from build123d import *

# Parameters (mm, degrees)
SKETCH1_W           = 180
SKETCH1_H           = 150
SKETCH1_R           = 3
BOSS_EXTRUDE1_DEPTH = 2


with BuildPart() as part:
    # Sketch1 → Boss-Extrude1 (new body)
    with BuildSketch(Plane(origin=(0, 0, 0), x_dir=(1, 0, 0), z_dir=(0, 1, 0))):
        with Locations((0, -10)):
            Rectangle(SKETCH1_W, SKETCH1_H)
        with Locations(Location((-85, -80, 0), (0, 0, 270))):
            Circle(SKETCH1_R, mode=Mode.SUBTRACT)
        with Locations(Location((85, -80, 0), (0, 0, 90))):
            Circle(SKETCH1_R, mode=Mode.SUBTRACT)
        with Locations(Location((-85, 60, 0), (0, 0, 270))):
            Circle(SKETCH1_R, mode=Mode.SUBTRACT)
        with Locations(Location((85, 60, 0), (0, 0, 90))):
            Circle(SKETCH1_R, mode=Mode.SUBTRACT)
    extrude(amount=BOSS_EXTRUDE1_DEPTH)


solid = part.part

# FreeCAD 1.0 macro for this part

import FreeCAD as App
import Part
import Sketcher

V = App.Vector
Q = App.Units.Quantity

doc = App.newDocument("Part")
body = doc.addObject("PartDesign::Body", "Body")

# Sketch on XZ plane
sketch1 = body.newObject("Sketcher::SketchObject", "Sketch")
sketch1.AttachmentSupport = (doc.getObject("XZ_Plane"), [""])
sketch1.MapMode = "FlatFace"
sketch1.addGeometry(Part.LineSegment(V(-90, -65, 0), V(-90, 85, 0)), False)
sketch1.addGeometry(Part.LineSegment(V(-90, 85, 0), V(90, 85, 0)), False)
sketch1.addGeometry(Part.LineSegment(V(90, 85, 0), V(90, -65, 0)), False)
sketch1.addGeometry(Part.LineSegment(V(90, -65, 0), V(-90, -65, 0)), False)
sketch1.addGeometry(Part.Circle(V(-85, 80, 0), V(0, 0, 1), 3), False)
sketch1.addGeometry(Part.Circle(V(85, 80, 0), V(0, 0, 1), 3), False)
sketch1.addGeometry(Part.Circle(V(-85, -60, 0), V(0, 0, 1), 3), False)
sketch1.addGeometry(Part.Circle(V(85, -60, 0), V(0, 0, 1), 3), False)
sketch1.addConstraint(Sketcher.Constraint("Coincident", 0, 2, 1, 1))
sketch1.addConstraint(Sketcher.Constraint("Coincident", 1, 2, 2, 1))
sketch1.addConstraint(Sketcher.Constraint("Coincident", 2, 2, 3, 1))
sketch1.addConstraint(Sketcher.Constraint("Coincident", 3, 2, 0, 1))
sketch1.addConstraint(Sketcher.Constraint("Vertical", 0))
sketch1.addConstraint(Sketcher.Constraint("Horizontal", 1))
sketch1.addConstraint(Sketcher.Constraint("Vertical", 2))
sketch1.addConstraint(Sketcher.Constraint("Horizontal", 3))
sketch1.addConstraint(Sketcher.Constraint("Equal", 4, 5))
sketch1.addConstraint(Sketcher.Constraint("Equal", 5, 6))
sketch1.addConstraint(Sketcher.Constraint("Equal", 6, 7))
sketch1.addConstraint(Sketcher.Constraint("Symmetric", 4, 3, 5, 3, -2))
sketch1.addConstraint(Sketcher.Constraint("Symmetric", 6, 3, 7, 3, -2))
sketch1.addConstraint(Sketcher.Constraint("Vertical", 4, 3, 6, 3))
sketch1.addConstraint(Sketcher.Constraint("Diameter", 4, Q("6 mm")))
sketch1.addConstraint(Sketcher.Constraint("DistanceX", 1, 1, 1, 2, Q("180 mm")))
sketch1.addConstraint(Sketcher.Constraint("DistanceY", 0, 1, 0, 2, Q("150 mm")))
sketch1.addConstraint(Sketcher.Constraint("DistanceX", 4, 3, -1, 1, Q("85 mm")))
sketch1.addConstraint(Sketcher.Constraint("DistanceY", -1, 1, 4, 3, Q("80 mm")))
sketch1.addConstraint(Sketcher.Constraint("DistanceY", 6, 3, -1, 1, Q("60 mm")))
sketch1.addConstraint(Sketcher.Constraint("DistanceX", 0, 2, -1, 1, Q("90 mm")))
sketch1.addConstraint(Sketcher.Constraint("DistanceY", -1, 1, 0, 2, Q("85 mm")))
pad1 = body.newObject("PartDesign::Pad", "Pad")
pad1.Profile = sketch1
pad1.Length = 2
pad1.Reversed = True

doc.recompute()
